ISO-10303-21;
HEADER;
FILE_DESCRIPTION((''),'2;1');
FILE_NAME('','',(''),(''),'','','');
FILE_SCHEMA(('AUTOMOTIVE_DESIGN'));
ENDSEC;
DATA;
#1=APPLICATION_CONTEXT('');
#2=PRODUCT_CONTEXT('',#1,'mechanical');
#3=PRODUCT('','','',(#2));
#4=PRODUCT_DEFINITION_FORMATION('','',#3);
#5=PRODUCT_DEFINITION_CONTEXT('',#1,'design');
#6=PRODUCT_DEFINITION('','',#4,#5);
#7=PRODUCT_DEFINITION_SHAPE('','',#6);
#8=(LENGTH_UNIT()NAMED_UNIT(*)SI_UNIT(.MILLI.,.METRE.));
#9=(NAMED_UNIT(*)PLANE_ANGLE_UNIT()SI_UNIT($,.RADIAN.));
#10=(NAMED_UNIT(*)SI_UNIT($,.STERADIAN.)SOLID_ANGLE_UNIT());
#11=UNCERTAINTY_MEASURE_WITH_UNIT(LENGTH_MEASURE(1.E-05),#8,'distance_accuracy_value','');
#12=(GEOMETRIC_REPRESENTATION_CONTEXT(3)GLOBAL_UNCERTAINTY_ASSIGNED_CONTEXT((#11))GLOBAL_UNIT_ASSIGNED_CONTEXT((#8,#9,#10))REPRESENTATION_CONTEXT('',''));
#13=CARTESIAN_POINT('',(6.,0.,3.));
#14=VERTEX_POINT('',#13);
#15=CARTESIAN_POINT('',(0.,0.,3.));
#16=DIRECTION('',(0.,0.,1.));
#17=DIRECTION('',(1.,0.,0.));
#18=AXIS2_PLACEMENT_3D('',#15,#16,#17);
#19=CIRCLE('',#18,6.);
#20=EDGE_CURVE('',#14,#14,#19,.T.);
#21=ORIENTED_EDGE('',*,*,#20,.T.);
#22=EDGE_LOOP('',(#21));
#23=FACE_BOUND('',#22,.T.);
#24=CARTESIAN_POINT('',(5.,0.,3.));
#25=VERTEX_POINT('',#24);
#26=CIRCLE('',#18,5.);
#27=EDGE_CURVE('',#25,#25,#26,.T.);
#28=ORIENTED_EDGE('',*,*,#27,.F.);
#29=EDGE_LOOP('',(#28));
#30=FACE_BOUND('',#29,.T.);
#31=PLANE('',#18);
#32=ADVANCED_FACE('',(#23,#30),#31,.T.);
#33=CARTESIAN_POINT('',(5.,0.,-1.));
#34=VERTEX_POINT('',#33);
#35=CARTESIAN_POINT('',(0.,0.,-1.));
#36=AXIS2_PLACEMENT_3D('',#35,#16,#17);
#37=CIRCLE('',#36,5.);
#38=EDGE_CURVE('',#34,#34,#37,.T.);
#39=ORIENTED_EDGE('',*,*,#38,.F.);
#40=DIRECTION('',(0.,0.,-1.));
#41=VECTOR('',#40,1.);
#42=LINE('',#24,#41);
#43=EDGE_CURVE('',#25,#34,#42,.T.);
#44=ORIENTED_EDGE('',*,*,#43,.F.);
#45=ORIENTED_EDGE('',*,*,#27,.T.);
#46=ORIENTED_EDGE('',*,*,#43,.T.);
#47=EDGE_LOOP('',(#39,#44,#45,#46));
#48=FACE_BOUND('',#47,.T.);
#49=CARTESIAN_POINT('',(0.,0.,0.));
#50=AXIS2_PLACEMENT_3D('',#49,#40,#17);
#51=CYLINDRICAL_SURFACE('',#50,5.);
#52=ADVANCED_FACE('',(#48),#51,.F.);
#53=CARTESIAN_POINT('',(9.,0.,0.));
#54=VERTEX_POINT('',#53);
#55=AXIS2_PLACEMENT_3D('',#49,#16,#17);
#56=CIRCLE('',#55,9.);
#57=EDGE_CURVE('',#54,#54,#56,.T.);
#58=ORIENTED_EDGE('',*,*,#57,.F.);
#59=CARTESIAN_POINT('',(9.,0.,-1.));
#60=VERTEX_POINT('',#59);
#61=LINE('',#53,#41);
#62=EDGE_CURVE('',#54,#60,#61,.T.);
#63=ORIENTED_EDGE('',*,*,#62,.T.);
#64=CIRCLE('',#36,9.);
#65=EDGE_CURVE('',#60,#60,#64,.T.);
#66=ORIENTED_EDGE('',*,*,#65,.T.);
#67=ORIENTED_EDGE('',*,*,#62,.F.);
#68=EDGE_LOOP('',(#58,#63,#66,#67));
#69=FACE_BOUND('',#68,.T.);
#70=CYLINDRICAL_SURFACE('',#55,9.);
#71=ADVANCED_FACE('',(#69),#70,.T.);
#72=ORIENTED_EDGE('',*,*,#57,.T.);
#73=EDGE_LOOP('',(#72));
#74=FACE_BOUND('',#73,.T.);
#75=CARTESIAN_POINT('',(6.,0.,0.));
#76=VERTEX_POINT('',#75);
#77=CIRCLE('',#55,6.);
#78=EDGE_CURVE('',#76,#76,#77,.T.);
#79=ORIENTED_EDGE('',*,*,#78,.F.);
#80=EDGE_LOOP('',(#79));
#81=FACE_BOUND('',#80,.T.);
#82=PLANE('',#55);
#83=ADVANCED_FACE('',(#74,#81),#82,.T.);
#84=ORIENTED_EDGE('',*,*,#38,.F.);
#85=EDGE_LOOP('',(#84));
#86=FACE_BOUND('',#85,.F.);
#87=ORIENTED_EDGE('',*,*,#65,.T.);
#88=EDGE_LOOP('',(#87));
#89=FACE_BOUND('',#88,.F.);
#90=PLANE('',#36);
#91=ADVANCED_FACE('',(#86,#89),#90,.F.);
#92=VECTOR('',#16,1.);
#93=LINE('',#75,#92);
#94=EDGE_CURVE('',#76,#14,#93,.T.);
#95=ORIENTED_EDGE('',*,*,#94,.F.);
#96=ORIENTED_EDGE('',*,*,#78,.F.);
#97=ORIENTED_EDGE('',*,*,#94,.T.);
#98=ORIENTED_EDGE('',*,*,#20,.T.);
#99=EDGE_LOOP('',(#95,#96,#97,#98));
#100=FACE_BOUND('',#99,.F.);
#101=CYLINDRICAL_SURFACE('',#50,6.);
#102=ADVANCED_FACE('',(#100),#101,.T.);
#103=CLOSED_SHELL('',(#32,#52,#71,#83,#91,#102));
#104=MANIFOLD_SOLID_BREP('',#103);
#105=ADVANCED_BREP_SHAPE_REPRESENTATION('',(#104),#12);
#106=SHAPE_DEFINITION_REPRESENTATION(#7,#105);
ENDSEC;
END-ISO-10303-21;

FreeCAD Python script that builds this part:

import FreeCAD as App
import Part
import Sketcher
from FreeCAD import Vector

doc = App.newDocument("Part")
body = doc.addObject("PartDesign::Body", "Body")

sketch1 = doc.addObject("Sketcher::SketchObject", "Sketch")
body.addObject(sketch1)
sketch1.AttachmentSupport = (doc.XY_Plane, [""])
sketch1.MapMode = "FlatFace"
sketch1.addGeometry(Part.Circle(Vector(0, 0, 0), Vector(0, 0, 1), 6), False)
sketch1.addGeometry(Part.Circle(Vector(0, 0, 0), Vector(0, 0, 1), 5), False)
sketch1.addConstraint(Sketcher.Constraint("Coincident", 0, 3, -1, 1))
sketch1.addConstraint(Sketcher.Constraint("Coincident", 1, 3, -1, 1))
sketch1.addConstraint(Sketcher.Constraint("Diameter", 0, 12.0))
sketch1.addConstraint(Sketcher.Constraint("Diameter", 1, 10.0))
pad1 = doc.addObject("PartDesign::Pad", "Pad")
body.addObject(pad1)
pad1.Profile = sketch1
pad1.Length = 3

sketch2 = doc.addObject("Sketcher::SketchObject", "Sketch001")
body.addObject(sketch2)
sketch2.AttachmentSupport = (doc.XY_Plane, [""])
sketch2.MapMode = "FlatFace"
sketch2.addGeometry(Part.Circle(Vector(0, 0, 0), Vector(0, 0, 1), 9), False)
sketch2.addGeometry(Part.Circle(Vector(0, 0, 0), Vector(0, 0, 1), 5), False)
sketch2.addConstraint(Sketcher.Constraint("Coincident", 0, 3, -1, 1))
sketch2.addConstraint(Sketcher.Constraint("Coincident", 1, 3, -1, 1))
sketch2.addConstraint(Sketcher.Constraint("Diameter", 0, 18.0))
sketch2.addConstraint(Sketcher.Constraint("Diameter", 1, 10.0))
pad2 = doc.addObject("PartDesign::Pad", "Pad001")
body.addObject(pad2)
pad2.Profile = sketch2
pad2.Length = 1
pad2.Reversed = True

doc.recompute()
